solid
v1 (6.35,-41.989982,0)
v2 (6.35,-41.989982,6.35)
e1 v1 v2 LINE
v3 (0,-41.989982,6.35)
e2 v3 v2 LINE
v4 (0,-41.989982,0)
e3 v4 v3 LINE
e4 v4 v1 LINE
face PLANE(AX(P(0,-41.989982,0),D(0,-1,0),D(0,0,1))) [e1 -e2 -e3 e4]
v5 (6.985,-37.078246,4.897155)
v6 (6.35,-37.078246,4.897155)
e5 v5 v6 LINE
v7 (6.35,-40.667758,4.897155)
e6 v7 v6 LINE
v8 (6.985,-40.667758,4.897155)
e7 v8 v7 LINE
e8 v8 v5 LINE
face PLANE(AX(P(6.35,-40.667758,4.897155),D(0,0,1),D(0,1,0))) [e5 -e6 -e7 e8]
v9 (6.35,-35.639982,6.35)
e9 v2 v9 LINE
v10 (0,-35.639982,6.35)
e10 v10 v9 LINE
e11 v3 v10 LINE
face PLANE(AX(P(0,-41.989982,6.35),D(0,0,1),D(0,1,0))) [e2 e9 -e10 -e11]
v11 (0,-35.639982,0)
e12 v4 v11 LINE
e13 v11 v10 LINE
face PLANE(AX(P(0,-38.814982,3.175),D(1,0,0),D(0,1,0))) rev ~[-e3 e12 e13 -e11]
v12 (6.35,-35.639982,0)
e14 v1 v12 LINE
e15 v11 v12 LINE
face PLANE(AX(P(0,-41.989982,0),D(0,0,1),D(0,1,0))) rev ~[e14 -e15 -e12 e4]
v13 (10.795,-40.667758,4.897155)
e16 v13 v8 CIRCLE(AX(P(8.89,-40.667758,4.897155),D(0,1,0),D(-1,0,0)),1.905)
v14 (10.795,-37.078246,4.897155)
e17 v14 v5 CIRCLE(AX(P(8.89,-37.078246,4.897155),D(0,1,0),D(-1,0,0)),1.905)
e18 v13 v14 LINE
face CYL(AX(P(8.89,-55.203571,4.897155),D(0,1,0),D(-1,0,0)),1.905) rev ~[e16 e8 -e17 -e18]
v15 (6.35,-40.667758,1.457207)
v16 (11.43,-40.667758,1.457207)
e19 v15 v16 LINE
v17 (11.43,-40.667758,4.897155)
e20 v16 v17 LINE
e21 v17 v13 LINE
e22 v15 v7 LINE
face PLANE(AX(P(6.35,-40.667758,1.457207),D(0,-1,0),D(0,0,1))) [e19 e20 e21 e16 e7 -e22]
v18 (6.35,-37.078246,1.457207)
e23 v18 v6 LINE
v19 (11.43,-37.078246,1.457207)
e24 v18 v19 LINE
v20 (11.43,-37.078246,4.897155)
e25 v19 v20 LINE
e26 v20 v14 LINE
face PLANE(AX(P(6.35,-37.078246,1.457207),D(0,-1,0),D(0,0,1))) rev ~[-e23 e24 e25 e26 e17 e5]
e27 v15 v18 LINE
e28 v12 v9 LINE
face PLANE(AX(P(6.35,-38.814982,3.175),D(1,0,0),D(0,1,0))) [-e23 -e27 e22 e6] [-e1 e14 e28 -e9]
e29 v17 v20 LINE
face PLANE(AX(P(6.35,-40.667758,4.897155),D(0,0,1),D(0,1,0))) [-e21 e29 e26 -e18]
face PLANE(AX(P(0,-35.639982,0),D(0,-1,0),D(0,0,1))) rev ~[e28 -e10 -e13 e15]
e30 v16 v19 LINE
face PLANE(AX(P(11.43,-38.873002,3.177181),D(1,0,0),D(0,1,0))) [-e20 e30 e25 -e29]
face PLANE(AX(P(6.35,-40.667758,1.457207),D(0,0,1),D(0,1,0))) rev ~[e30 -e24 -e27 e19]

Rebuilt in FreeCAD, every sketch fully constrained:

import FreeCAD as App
import Part
import Sketcher
from FreeCAD import Vector
Q = App.Units.Quantity

doc = App.newDocument("Part")
body = doc.addObject("PartDesign::Body", "Body")

sketch1 = body.newObject("Sketcher::SketchObject", "Sketch")
sketch1.AttachmentSupport = (doc.getObject("YZ_Plane"), [""])
sketch1.MapMode = "FlatFace"
sketch1.addGeometry(Part.LineSegment(Vector(-42, 6, 0), Vector(-42, 0, 0)), False)
sketch1.addGeometry(Part.LineSegment(Vector(-42, 0, 0), Vector(-36, 0, 0)), False)
sketch1.addGeometry(Part.LineSegment(Vector(-36, 0, 0), Vector(-36, 6, 0)), False)
sketch1.addGeometry(Part.LineSegment(Vector(-36, 6, 0), Vector(-42, 6, 0)), False)
sketch1.addConstraint(Sketcher.Constraint("Coincident", 0, 2, 1, 1))
sketch1.addConstraint(Sketcher.Constraint("Coincident", 1, 2, 2, 1))
sketch1.addConstraint(Sketcher.Constraint("Coincident", 2, 2, 3, 1))
sketch1.addConstraint(Sketcher.Constraint("Coincident", 3, 2, 0, 1))
sketch1.addConstraint(Sketcher.Constraint("Vertical", 0))
sketch1.addConstraint(Sketcher.Constraint("Horizontal", 1))
sketch1.addConstraint(Sketcher.Constraint("Vertical", 2))
sketch1.addConstraint(Sketcher.Constraint("Horizontal", 3))
sketch1.addConstraint(Sketcher.Constraint("PointOnObject", 0, 2, -1))
sketch1.addConstraint(Sketcher.Constraint("Equal", 3, 0))
sketch1.addConstraint(Sketcher.Constraint("DistanceX", 1, 1, 1, 2, Q("0.25 in")))
sketch1.addConstraint(Sketcher.Constraint("DistanceX", 0, 2, -1, 1, 41.989982))
pad1 = body.newObject("PartDesign::Pad", "Pad")
pad1.Profile = sketch1
pad1.Length = Q("0.25 in")
body2 = doc.addObject("PartDesign::Body", "Body001")

sketch2 = body2.newObject("Sketcher::SketchObject", "Sketch001")
sketch2.AttachmentSupport = (doc.getObject("YZ_Plane001"), [""])
sketch2.MapMode = "FlatFace"
sketch2.AttachmentOffset = App.Placement(Vector(0, 0, 0.35 * 25.4), App.Rotation())
sketch2.addGeometry(Part.LineSegment(Vector(-40.7, 4.9, 0), Vector(-40.7, 1.5, 0)), False)
sketch2.addGeometry(Part.LineSegment(Vector(-40.7, 1.5, 0), Vector(-37.1, 1.5, 0)), False)
sketch2.addGeometry(Part.LineSegment(Vector(-37.1, 1.5, 0), Vector(-37.1, 4.9, 0)), False)
sketch2.addGeometry(Part.LineSegment(Vector(-37.1, 4.9, 0), Vector(-40.7, 4.9, 0)), False)
sketch2.addConstraint(Sketcher.Constraint("Coincident", 0, 2, 1, 1))
sketch2.addConstraint(Sketcher.Constraint("Coincident", 1, 2, 2, 1))
sketch2.addConstraint(Sketcher.Constraint("Coincident", 2, 2, 3, 1))
sketch2.addConstraint(Sketcher.Constraint("Coincident", 3, 2, 0, 1))
sketch2.addConstraint(Sketcher.Constraint("Vertical", 0))
sketch2.addConstraint(Sketcher.Constraint("Horizontal", 1))
sketch2.addConstraint(Sketcher.Constraint("Vertical", 2))
sketch2.addConstraint(Sketcher.Constraint("Horizontal", 3))
sketch2.addConstraint(Sketcher.Constraint("DistanceX", 1, 1, 1, 2, 3.589511))
sketch2.addConstraint(Sketcher.Constraint("DistanceY", 0, 2, 0, 1, 3.439947))
sketch2.addConstraint(Sketcher.Constraint("DistanceX", 0, 2, -1, 1, 40.667758))
sketch2.addConstraint(Sketcher.Constraint("DistanceY", -1, 1, 0, 2, 1.457207))
pad2 = body2.newObject("PartDesign::Pad", "Pad001")
pad2.Profile = sketch2
pad2.Length = Q("0.1 in")
body.AllowCompound = True
doc.recompute()

boolean = body.newObject("PartDesign::Boolean", "Boolean")
boolean.Type = "Fuse"
boolean.addObjects([body2])

sketch3 = body.newObject("Sketcher::SketchObject", "Sketch002")
sketch3.AttachmentSupport = (doc.getObject("YZ_Plane"), [""])
sketch3.MapMode = "FlatFace"
sketch3.AttachmentOffset = App.Placement(Vector(0, 0, 0.25 * 25.4), App.Rotation())
sketch3.addGeometry(Part.LineSegment(Vector(-40.7, 4.9, 0), Vector(-40.7, 1.5, 0)), False)
sketch3.addGeometry(Part.LineSegment(Vector(-40.7, 1.5, 0), Vector(-37.1, 1.5, 0)), False)
sketch3.addGeometry(Part.LineSegment(Vector(-37.1, 1.5, 0), Vector(-37.1, 4.9, 0)), False)
sketch3.addGeometry(Part.LineSegment(Vector(-37.1, 4.9, 0), Vector(-40.7, 4.9, 0)), False)
sketch3.addConstraint(Sketcher.Constraint("Coincident", 0, 2, 1, 1))
sketch3.addConstraint(Sketcher.Constraint("Coincident", 1, 2, 2, 1))
sketch3.addConstraint(Sketcher.Constraint("Coincident", 2, 2, 3, 1))
sketch3.addConstraint(Sketcher.Constraint("Coincident", 3, 2, 0, 1))
sketch3.addConstraint(Sketcher.Constraint("Vertical", 0))
sketch3.addConstraint(Sketcher.Constraint("Horizontal", 1))
sketch3.addConstraint(Sketcher.Constraint("Vertical", 2))
sketch3.addConstraint(Sketcher.Constraint("Horizontal", 3))
sketch3.addConstraint(Sketcher.Constraint("DistanceX", 1, 1, 1, 2, 3.589511))
sketch3.addConstraint(Sketcher.Constraint("DistanceY", 0, 2, 0, 1, 3.439947))
sketch3.addConstraint(Sketcher.Constraint("DistanceX", 0, 2, -1, 1, 40.667758))
sketch3.addConstraint(Sketcher.Constraint("DistanceY", -1, 1, 0, 2, 1.457207))
pad3 = body.newObject("PartDesign::Pad", "Pad002")
pad3.Profile = sketch3
pad3.Length = Q("0.1 in")

sketch4 = body.newObject("Sketcher::SketchObject", "Sketch003")
sketch4.AttachmentSupport = (doc.getObject("XZ_Plane"), [""])
sketch4.MapMode = "FlatFace"
sketch4.AttachmentOffset = App.Placement(Vector(0, 0, 40.667757), App.Rotation())
sketch4.addGeometry(Part.Circle(Vector(8.9, 4.9, 0), Vector(0, 0, 1), 1.9), False)
sketch4.addConstraint(Sketcher.Constraint("Diameter", 0, Q("0.15 in")))
sketch4.addConstraint(Sketcher.Constraint("DistanceX", -1, 1, 0, 3, Q("0.35 in")))
sketch4.addConstraint(Sketcher.Constraint("DistanceY", -1, 1, 0, 3, 4.897155))
doc.recompute()
hole = body.newObject("PartDesign::Hole", "Hole")
hole.Profile = sketch4
hole.ThreadType = "None"
hole.Diameter = Q("0.15 in")
hole.DepthType = "ThroughAll"

doc.recompute()
